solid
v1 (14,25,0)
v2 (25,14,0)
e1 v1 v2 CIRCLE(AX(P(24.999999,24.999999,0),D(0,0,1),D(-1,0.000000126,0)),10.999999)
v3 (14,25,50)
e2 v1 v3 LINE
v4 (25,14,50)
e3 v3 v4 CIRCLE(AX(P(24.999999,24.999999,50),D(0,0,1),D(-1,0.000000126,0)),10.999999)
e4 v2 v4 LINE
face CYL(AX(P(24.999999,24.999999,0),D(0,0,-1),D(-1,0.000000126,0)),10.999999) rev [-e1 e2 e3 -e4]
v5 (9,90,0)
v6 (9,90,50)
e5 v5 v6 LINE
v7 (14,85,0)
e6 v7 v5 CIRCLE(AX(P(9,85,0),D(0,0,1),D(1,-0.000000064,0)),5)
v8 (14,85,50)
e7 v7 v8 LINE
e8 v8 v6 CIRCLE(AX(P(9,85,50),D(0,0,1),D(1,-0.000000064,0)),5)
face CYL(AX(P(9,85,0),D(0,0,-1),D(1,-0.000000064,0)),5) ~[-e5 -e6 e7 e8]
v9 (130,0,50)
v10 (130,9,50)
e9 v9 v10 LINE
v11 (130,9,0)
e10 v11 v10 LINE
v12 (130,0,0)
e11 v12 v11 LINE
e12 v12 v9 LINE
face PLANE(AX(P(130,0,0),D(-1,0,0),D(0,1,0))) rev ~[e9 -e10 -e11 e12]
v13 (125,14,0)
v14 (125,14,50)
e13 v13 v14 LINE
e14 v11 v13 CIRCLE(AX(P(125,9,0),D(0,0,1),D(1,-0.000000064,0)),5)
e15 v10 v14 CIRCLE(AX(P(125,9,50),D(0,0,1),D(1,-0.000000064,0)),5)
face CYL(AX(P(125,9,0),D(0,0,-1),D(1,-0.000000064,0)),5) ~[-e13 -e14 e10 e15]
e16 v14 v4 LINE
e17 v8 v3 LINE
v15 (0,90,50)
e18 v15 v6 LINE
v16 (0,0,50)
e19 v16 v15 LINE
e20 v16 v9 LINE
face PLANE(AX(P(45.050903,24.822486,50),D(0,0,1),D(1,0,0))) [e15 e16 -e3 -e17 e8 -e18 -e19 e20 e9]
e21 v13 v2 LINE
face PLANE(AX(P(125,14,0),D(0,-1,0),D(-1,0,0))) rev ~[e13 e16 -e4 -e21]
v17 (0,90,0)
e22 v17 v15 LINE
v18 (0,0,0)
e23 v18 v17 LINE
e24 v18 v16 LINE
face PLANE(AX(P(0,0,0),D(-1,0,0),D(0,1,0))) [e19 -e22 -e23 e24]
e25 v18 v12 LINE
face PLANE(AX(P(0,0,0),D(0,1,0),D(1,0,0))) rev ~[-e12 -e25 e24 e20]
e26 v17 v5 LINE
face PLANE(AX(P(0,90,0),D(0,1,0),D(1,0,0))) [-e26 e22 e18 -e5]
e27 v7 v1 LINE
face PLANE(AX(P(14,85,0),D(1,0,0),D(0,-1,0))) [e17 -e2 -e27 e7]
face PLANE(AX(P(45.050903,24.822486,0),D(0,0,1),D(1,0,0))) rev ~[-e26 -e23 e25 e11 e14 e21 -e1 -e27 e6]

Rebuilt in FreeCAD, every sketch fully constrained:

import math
import FreeCAD as App
import Part
import Sketcher
from FreeCAD import Vector

doc = App.newDocument("Part")
params = doc.addObject("Spreadsheet::Sheet", "Params")
for row, (alias, value) in enumerate([
    ("sketch1_radius", "5 mm"),
    ("sketch1_radius2", "10.999999 mm"),
    ("sketch1_width", "130 mm"),
    ("sketch1_width2", "100 mm"),
    ("sketch1_height", "60 mm"),
    ("pad1_length", "50 mm"),
], start=1):
    params.set(f"A{row}", alias)
    params.set(f"B{row}", "=" + value)
    params.setAlias(f"B{row}", alias)

body = doc.addObject("PartDesign::Body", "Body")

# Sketch on XY plane
sketch1 = body.newObject("Sketcher::SketchObject", "Sketch")
sketch1.AttachmentSupport = (doc.getObject("XY_Plane"), [""])
sketch1.MapMode = "FlatFace"
sketch1.addGeometry([
    Part.LineSegment(Vector(0, 0, 0), Vector(130, 0, 0)),  # 0
    Part.LineSegment(Vector(130, 0, 0), Vector(130, 9, 0)),  # 1
    Part.ArcOfCircle(Part.Circle(Vector(125, 9, 0), Vector(0, 0, 1), 5), math.radians(0), math.radians(90)),  # 2
    Part.LineSegment(Vector(125, 14, 0), Vector(25, 14, 0)),  # 3
    Part.ArcOfCircle(Part.Circle(Vector(25, 25, 0), Vector(0, 0, 1), 11), math.radians(180), math.radians(270)),  # 4
    Part.LineSegment(Vector(14, 25, 0), Vector(14, 85, 0)),  # 5
    Part.ArcOfCircle(Part.Circle(Vector(9, 85, 0), Vector(0, 0, 1), 5), math.radians(0), math.radians(90)),  # 6
    Part.LineSegment(Vector(9, 90, 0), Vector(0, 90, 0)),  # 7
    Part.LineSegment(Vector(0, 90, 0), Vector(0, 0, 0)),  # 8
], False)
sketch1.addConstraint([
    Sketcher.Constraint("Coincident", 0, 2, 1, 1),
    Sketcher.Constraint("Tangent", 1, 2, 2, 1),
    Sketcher.Constraint("Tangent", 2, 2, 3, 1),
    Sketcher.Constraint("Tangent", 3, 2, 4, 2),
    Sketcher.Constraint("Tangent", 4, 1, 5, 1),
    Sketcher.Constraint("Tangent", 5, 2, 6, 1),
    Sketcher.Constraint("Tangent", 6, 2, 7, 1),
    Sketcher.Constraint("Coincident", 7, 2, 8, 1),
    Sketcher.Constraint("Coincident", 8, 2, 0, 1),
    Sketcher.Constraint("Horizontal", 0),
    Sketcher.Constraint("Vertical", 1),
    Sketcher.Constraint("Horizontal", 3),
    Sketcher.Constraint("Vertical", 5),
    Sketcher.Constraint("Horizontal", 7),
    Sketcher.Constraint("Vertical", 8),
    Sketcher.Constraint("Coincident", 8, 2, -1, 1),
    Sketcher.Constraint("Equal", 2, 6),
    Sketcher.Constraint("Equal", 7, 1),
    Sketcher.Constraint("Radius", 2, 5.0),
    Sketcher.Constraint("Radius", 4, 10.999999),
    Sketcher.Constraint("DistanceX", 0, 1, 0, 2, 130.0),
    Sketcher.Constraint("DistanceX", 3, 2, 3, 1, 100.0),
    Sketcher.Constraint("DistanceY", 5, 1, 5, 2, 60.0),
])
sketch1.setExpression("Constraints[18]", "Params.sketch1_radius")
sketch1.setExpression("Constraints[19]", "Params.sketch1_radius2")
sketch1.setExpression("Constraints[20]", "Params.sketch1_width")
sketch1.setExpression("Constraints[21]", "Params.sketch1_width2")
sketch1.setExpression("Constraints[22]", "Params.sketch1_height")
pad1 = body.newObject("PartDesign::Pad", "Pad")
pad1.Profile = sketch1
pad1.setExpression("Length", "Params.pad1_length")

doc.recompute()
